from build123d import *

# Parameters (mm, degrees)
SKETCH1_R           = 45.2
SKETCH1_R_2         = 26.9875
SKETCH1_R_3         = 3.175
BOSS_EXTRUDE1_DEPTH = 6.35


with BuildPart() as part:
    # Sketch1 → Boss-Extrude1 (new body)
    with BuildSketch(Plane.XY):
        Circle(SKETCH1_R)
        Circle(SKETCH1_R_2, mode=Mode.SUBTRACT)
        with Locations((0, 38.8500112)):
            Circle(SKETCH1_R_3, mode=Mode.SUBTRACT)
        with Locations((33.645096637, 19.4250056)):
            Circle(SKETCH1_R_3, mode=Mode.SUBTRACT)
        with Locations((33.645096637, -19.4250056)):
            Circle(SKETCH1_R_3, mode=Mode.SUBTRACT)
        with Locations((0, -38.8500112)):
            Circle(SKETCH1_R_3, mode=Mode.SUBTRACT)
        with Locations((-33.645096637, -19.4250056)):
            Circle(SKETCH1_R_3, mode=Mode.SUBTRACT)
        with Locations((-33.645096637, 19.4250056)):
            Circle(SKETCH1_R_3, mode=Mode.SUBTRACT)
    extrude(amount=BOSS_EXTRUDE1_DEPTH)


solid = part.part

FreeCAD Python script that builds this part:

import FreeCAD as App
import Part
import Sketcher
Q = App.Units.Quantity

doc = App.newDocument("Part")
body = doc.addObject("PartDesign::Body", "Body")

sketch1 = body.newObject("Sketcher::SketchObject", "Sketch")
sketch1.AttachmentSupport = (doc.getObject("XY_Plane"), [""])
sketch1.MapMode = "FlatFace"
sketch1.addGeometry(Part.Circle(App.Vector(0, 0, 0), App.Vector(0, 0, 1), 45.2), False)
sketch1.addGeometry(Part.Circle(App.Vector(-33.6, -19.4, 0), App.Vector(0, 0, 1), 3.2), False)
sketch1.addGeometry(Part.Circle(App.Vector(0, -38.9, 0), App.Vector(0, 0, 1), 3.2), False)
sketch1.addGeometry(Part.Circle(App.Vector(33.6, -19.4, 0), App.Vector(0, 0, 1), 3.2), False)
sketch1.addGeometry(Part.Circle(App.Vector(-33.6, 19.4, 0), App.Vector(0, 0, 1), 3.2), False)
sketch1.addGeometry(Part.Circle(App.Vector(0, 0, 0), App.Vector(0, 0, 1), 27), False)
sketch1.addGeometry(Part.Circle(App.Vector(33.6, 19.4, 0), App.Vector(0, 0, 1), 3.2), False)
sketch1.addGeometry(Part.Circle(App.Vector(0, 38.9, 0), App.Vector(0, 0, 1), 3.2), False)
sketch1.addConstraint(Sketcher.Constraint("Coincident", 0, 3, -1, 1))
sketch1.addConstraint(Sketcher.Constraint("Coincident", 5, 3, -1, 1))
sketch1.addConstraint(Sketcher.Constraint("Equal", 1, 2))
sketch1.addConstraint(Sketcher.Constraint("Equal", 2, 3))
sketch1.addConstraint(Sketcher.Constraint("Equal", 3, 4))
sketch1.addConstraint(Sketcher.Constraint("Equal", 4, 6))
sketch1.addConstraint(Sketcher.Constraint("Equal", 6, 7))
sketch1.addConstraint(Sketcher.Constraint("Symmetric", 3, 3, 4, 3, -1, 1))
sketch1.addConstraint(Sketcher.Constraint("Symmetric", 1, 3, 6, 3, -1, 1))
sketch1.addConstraint(Sketcher.Constraint("Symmetric", 2, 3, 7, 3, -1, 1))
sketch1.addConstraint(Sketcher.Constraint("Symmetric", 1, 3, 3, 3, -2))
sketch1.addConstraint(Sketcher.Constraint("PointOnObject", 2, 3, -2))
sketch1.addConstraint(Sketcher.Constraint("Diameter", 1, Q("0.25 in")))
sketch1.addConstraint(Sketcher.Constraint("Diameter", 5, Q("2.125 in")))
sketch1.addConstraint(Sketcher.Constraint("Diameter", 0, Q("90.4 mm")))
sketch1.addConstraint(Sketcher.Constraint("DistanceY", 2, 3, -1, 1, Q("38.850011 mm")))
sketch1.addConstraint(Sketcher.Constraint("DistanceY", 1, 3, 4, 3, Q("38.850011 mm")))
sketch1.addConstraint(Sketcher.Constraint("DistanceX", 1, 3, -1, 1, Q("33.645097 mm")))
pad1 = body.newObject("PartDesign::Pad", "Pad")
pad1.Profile = sketch1
pad1.Length = Q("0.25 in")

doc.recompute()
